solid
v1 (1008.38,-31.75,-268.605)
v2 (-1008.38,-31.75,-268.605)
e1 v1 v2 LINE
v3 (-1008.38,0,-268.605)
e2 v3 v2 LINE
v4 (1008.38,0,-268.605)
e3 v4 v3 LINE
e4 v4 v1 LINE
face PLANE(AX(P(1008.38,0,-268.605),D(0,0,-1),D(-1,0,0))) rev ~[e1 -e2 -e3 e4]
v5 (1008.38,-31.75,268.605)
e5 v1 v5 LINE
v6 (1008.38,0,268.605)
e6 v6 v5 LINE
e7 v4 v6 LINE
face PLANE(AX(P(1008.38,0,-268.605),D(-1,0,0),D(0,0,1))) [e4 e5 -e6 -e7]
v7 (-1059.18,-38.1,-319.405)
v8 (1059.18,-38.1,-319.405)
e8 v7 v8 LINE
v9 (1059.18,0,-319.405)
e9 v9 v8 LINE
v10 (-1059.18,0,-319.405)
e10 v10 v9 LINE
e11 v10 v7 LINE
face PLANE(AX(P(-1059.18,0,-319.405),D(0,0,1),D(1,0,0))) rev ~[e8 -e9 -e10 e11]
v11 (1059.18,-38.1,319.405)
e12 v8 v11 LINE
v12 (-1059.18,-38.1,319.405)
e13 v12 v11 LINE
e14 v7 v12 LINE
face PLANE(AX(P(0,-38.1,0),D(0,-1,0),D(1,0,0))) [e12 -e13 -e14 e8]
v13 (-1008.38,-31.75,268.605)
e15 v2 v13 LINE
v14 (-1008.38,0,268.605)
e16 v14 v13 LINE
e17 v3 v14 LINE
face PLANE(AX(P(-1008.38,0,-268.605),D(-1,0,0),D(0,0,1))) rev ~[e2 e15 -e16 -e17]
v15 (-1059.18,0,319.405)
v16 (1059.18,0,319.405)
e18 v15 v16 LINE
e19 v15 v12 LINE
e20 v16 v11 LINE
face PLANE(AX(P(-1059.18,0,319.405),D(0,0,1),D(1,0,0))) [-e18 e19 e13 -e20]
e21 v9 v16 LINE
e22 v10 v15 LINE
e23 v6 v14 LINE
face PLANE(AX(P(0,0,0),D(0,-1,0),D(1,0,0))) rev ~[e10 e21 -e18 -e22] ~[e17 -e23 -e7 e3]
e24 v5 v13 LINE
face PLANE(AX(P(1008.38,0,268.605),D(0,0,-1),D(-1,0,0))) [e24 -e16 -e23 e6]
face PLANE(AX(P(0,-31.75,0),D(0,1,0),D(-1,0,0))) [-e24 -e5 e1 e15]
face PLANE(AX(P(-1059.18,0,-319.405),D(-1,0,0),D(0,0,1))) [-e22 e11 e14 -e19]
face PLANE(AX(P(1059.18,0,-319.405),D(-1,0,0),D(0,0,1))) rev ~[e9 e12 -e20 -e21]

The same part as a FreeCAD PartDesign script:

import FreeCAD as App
import Part
import Sketcher

V = App.Vector
Q = App.Units.Quantity

doc = App.newDocument("Part")
params = doc.addObject("Spreadsheet::Sheet", "Params")
for row, (alias, value) in enumerate([
    ("sketch1_width", "83.4 in"),
    ("sketch1_height", "25.15 in"),
    ("pad1_length", "1.5 in"),
    ("sketch2_width", "79.4 in"),
    ("sketch2_height", "21.15 in"),
    ("pocket1_length", "1.25 in"),
], start=1):
    params.set(f"A{row}", alias)
    params.set(f"B{row}", "=" + value)
    params.setAlias(f"B{row}", alias)

body = doc.addObject("PartDesign::Body", "Body")

# Sketch on XZ plane
sketch1 = doc.addObject("Sketcher::SketchObject", "Sketch")
body.addObject(sketch1)
sketch1.AttachmentSupport = (doc.XZ_Plane, [""])
sketch1.MapMode = "FlatFace"
sketch1.addGeometry(Part.LineSegment(V(-1059, 319, 0), V(-1059, -319, 0)), False)
sketch1.addGeometry(Part.LineSegment(V(-1059, -319, 0), V(1059, -319, 0)), False)
sketch1.addGeometry(Part.LineSegment(V(1059, -319, 0), V(1059, 319, 0)), False)
sketch1.addGeometry(Part.LineSegment(V(1059, 319, 0), V(-1059, 319, 0)), False)
sketch1.addConstraint(Sketcher.Constraint("Coincident", 0, 2, 1, 1))
sketch1.addConstraint(Sketcher.Constraint("Coincident", 1, 2, 2, 1))
sketch1.addConstraint(Sketcher.Constraint("Coincident", 2, 2, 3, 1))
sketch1.addConstraint(Sketcher.Constraint("Coincident", 3, 2, 0, 1))
sketch1.addConstraint(Sketcher.Constraint("Vertical", 0))
sketch1.addConstraint(Sketcher.Constraint("Horizontal", 1))
sketch1.addConstraint(Sketcher.Constraint("Vertical", 2))
sketch1.addConstraint(Sketcher.Constraint("Horizontal", 3))
sketch1.addConstraint(Sketcher.Constraint("Symmetric", 0, 2, 2, 2, -1, 1))
sketch1.addConstraint(Sketcher.Constraint("DistanceX", 1, 1, 1, 2, Q("83.4 in")))
sketch1.addConstraint(Sketcher.Constraint("DistanceY", 0, 2, 0, 1, Q("25.15 in")))
sketch1.setExpression("Constraints[9]", "Params.sketch1_width")
sketch1.setExpression("Constraints[10]", "Params.sketch1_height")
pad1 = doc.addObject("PartDesign::Pad", "Pad")
body.addObject(pad1)
pad1.Profile = sketch1
pad1.setExpression("Length", "Params.pad1_length")

# Sketch on XZ plane
sketch2 = doc.addObject("Sketcher::SketchObject", "Sketch001")
body.addObject(sketch2)
sketch2.AttachmentSupport = (doc.XZ_Plane, [""])
sketch2.MapMode = "FlatFace"
sketch2.addGeometry(Part.LineSegment(V(1008, 269, 0), V(1008, -269, 0)), False)
sketch2.addGeometry(Part.LineSegment(V(1008, -269, 0), V(-1008, -269, 0)), False)
sketch2.addGeometry(Part.LineSegment(V(-1008, -269, 0), V(-1008, 269, 0)), False)
sketch2.addGeometry(Part.LineSegment(V(-1008, 269, 0), V(1008, 269, 0)), False)
sketch2.addConstraint(Sketcher.Constraint("Coincident", 0, 2, 1, 1))
sketch2.addConstraint(Sketcher.Constraint("Coincident", 1, 2, 2, 1))
sketch2.addConstraint(Sketcher.Constraint("Coincident", 2, 2, 3, 1))
sketch2.addConstraint(Sketcher.Constraint("Coincident", 3, 2, 0, 1))
sketch2.addConstraint(Sketcher.Constraint("Vertical", 0))
sketch2.addConstraint(Sketcher.Constraint("Horizontal", 1))
sketch2.addConstraint(Sketcher.Constraint("Vertical", 2))
sketch2.addConstraint(Sketcher.Constraint("Horizontal", 3))
sketch2.addConstraint(Sketcher.Constraint("Symmetric", 0, 2, 2, 2, -1, 1))
sketch2.addConstraint(Sketcher.Constraint("DistanceX", 1, 2, 1, 1, Q("79.4 in")))
sketch2.addConstraint(Sketcher.Constraint("DistanceY", 0, 2, 0, 1, Q("21.15 in")))
sketch2.setExpression("Constraints[9]", "Params.sketch2_width")
sketch2.setExpression("Constraints[10]", "Params.sketch2_height")
pocket1 = doc.addObject("PartDesign::Pocket", "Pocket")
body.addObject(pocket1)
pocket1.Profile = sketch2
pocket1.setExpression("Length", "Params.pocket1_length")
pocket1.Reversed = True

doc.recompute()
